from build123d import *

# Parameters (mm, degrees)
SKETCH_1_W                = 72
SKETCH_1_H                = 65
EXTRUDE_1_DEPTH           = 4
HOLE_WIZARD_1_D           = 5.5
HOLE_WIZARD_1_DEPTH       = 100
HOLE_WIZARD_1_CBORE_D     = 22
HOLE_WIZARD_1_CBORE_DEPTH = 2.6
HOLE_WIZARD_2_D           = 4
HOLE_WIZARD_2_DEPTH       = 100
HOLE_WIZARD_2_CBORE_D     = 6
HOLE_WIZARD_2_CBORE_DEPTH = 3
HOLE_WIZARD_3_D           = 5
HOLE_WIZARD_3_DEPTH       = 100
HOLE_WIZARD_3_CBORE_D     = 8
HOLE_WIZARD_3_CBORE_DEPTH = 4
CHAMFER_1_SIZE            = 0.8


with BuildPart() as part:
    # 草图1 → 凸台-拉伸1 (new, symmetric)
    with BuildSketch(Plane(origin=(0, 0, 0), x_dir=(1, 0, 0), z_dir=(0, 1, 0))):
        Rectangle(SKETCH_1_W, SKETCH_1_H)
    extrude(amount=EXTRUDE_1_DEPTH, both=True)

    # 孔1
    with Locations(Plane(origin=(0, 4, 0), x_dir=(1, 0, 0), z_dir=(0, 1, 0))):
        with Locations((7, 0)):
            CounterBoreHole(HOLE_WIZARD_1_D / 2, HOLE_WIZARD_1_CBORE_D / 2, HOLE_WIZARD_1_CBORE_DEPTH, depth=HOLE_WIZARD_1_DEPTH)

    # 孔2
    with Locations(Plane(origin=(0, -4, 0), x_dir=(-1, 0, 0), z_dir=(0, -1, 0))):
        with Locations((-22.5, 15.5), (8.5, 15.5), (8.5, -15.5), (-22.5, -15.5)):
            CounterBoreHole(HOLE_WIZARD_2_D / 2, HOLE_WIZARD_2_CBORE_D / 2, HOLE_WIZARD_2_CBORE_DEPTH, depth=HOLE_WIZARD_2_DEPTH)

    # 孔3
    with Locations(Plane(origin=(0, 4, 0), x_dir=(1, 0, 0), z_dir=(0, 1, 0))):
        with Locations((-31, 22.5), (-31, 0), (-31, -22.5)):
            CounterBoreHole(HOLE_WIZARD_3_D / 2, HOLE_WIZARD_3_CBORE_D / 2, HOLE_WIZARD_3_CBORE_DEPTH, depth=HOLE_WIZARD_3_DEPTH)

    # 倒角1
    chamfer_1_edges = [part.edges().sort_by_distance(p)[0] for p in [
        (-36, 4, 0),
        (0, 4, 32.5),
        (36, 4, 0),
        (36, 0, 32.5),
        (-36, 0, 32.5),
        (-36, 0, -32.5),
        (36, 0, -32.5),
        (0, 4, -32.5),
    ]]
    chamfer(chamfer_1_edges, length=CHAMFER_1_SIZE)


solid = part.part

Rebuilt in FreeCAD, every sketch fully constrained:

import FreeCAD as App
import Part
import Sketcher
from FreeCAD import Vector
Q = App.Units.Quantity


def edges_at(feature, points):
    """Names of the edges that pass closest to the given points."""
    edges = feature.Shape.Edges
    near = lambda p: min(range(len(edges)), key=lambda i: edges[i].distToShape(Part.Vertex(*p))[0])
    return sorted({f"Edge{near(p) + 1}" for p in points})


def add_polygon(sketch, points):
    """Adds a closed chain of lines whose ends are joined by coincident constraints."""
    first, n = sketch.GeometryCount, len(points)
    for a, b in zip(points, points[1:] + points[:1]):
        sketch.addGeometry(Part.LineSegment(App.Vector(*a, 0), App.Vector(*b, 0)), False)
    for i in range(n):
        sketch.addConstraint(Sketcher.Constraint("Coincident", first + i, 2, first + (i + 1) % n, 1))

doc = App.newDocument("Part")
params = doc.addObject("Spreadsheet::Sheet", "Params")
for row, (alias, value) in enumerate([
    ("sketch1_width", "72 mm"),
    ("sketch1_height", "65 mm"),
    ("pad1_length", "8 mm"),
    ("sketch2_diameter", "5.5 mm"),
    ("hole_diameter", "5.5 mm"),
    ("hole_depth", "100 mm"),
    ("hole_cbore_diameter", "22 mm"),
    ("hole_cbore_depth", "2.6 mm"),
    ("sketch3_diameter", "4 mm"),
    ("hole2_diameter", "4 mm"),
    ("hole2_depth", "100 mm"),
    ("hole2_cbore_diameter", "6 mm"),
    ("hole2_cbore_depth", "3 mm"),
    ("sketch4_diameter", "5 mm"),
    ("hole3_diameter", "5 mm"),
    ("hole3_depth", "100 mm"),
    ("hole3_cbore_diameter", "8 mm"),
    ("hole3_cbore_depth", "4 mm"),
    ("chamfer_size", "0.8 mm"),
], start=1):
    params.set(f"A{row}", alias)
    params.set(f"B{row}", "=" + value)
    params.setAlias(f"B{row}", alias)

body = doc.addObject("PartDesign::Body", "Body")

sketch1 = doc.addObject("Sketcher::SketchObject", "Sketch")
body.addObject(sketch1)
sketch1.AttachmentSupport = (doc.XZ_Plane, [""])
sketch1.MapMode = "FlatFace"
add_polygon(sketch1, [(-36, -32), (-36, 32), (36, 32), (36, -32)])
sketch1.addConstraint([
    Sketcher.Constraint("Vertical", 0),
    Sketcher.Constraint("Horizontal", 1),
    Sketcher.Constraint("Vertical", 2),
    Sketcher.Constraint("Horizontal", 3),
    Sketcher.Constraint("Symmetric", 0, 2, 2, 2, -1, 1),
    Sketcher.Constraint("DistanceX", 1, 1, 1, 2, Q("72 mm")),
    Sketcher.Constraint("DistanceY", 0, 1, 0, 2, Q("65 mm")),
])
sketch1.setExpression("Constraints[9]", "Params.sketch1_width")
sketch1.setExpression("Constraints[10]", "Params.sketch1_height")
pad1 = doc.addObject("PartDesign::Pad", "Pad")
body.addObject(pad1)
pad1.Profile = sketch1
pad1.setExpression("Length", "Params.pad1_length")
pad1.Midplane = True

sketch2 = doc.addObject("Sketcher::SketchObject", "Sketch001")
body.addObject(sketch2)
sketch2.AttachmentSupport = (doc.XZ_Plane, [""])
sketch2.MapMode = "FlatFace"
sketch2.AttachmentOffset = App.Placement(Vector(0, 0, -4), App.Rotation())
sketch2.addGeometry(Part.Circle(Vector(7, 0, 0), Vector(0, 0, 1), 2.8), False)
sketch2.addConstraint([
    Sketcher.Constraint("PointOnObject", 0, 3, -1),
    Sketcher.Constraint("Diameter", 0, Q("5.5 mm")),
    Sketcher.Constraint("DistanceX", -1, 1, 0, 3, Q("7 mm")),
])
sketch2.setExpression("Constraints[1]", "Params.sketch2_diameter")
doc.recompute()
hole = doc.addObject("PartDesign::Hole", "Hole")
body.addObject(hole)
hole.Profile = sketch2
hole.ThreadType = "None"
hole.setExpression("Diameter", "Params.hole_diameter")
hole.DepthType = "Dimension"
hole.setExpression("Depth", "Params.hole_depth")
hole.DrillPoint = "Flat"
hole.HoleCutType = "Counterbore"
hole.setExpression("HoleCutDiameter", "Params.hole_cbore_diameter")
hole.setExpression("HoleCutDepth", "Params.hole_cbore_depth")
hole.Reversed = True

sketch3 = doc.addObject("Sketcher::SketchObject", "Sketch002")
body.addObject(sketch3)
sketch3.AttachmentSupport = (doc.XZ_Plane, [""])
sketch3.MapMode = "FlatFace"
sketch3.AttachmentOffset = App.Placement(Vector(0, 0, 4), App.Rotation())
sketch3.addGeometry([
    Part.Circle(Vector(22.5, -15.5, 0), Vector(0, 0, 1), 2),
    Part.Circle(Vector(-8.5, -15.5, 0), Vector(0, 0, 1), 2),
    Part.Circle(Vector(-8.5, 15.5, 0), Vector(0, 0, 1), 2),
    Part.Circle(Vector(22.5, 15.5, 0), Vector(0, 0, 1), 2),
], False)
sketch3.addConstraint([
    Sketcher.Constraint("Equal", 0, 1),
    Sketcher.Constraint("Equal", 1, 2),
    Sketcher.Constraint("Equal", 2, 3),
    Sketcher.Constraint("Symmetric", 1, 3, 2, 3, -1),
    Sketcher.Constraint("Symmetric", 0, 3, 3, 3, -1),
    Sketcher.Constraint("Horizontal", 0, 3, 1, 3),
    Sketcher.Constraint("Diameter", 0, Q("4 mm")),
    Sketcher.Constraint("DistanceX", 1, 3, 0, 3, Q("31 mm")),
    Sketcher.Constraint("DistanceY", 1, 3, 2, 3, Q("31 mm")),
    Sketcher.Constraint("DistanceX", -1, 1, 0, 3, Q("22.5 mm")),
])
sketch3.setExpression("Constraints[6]", "Params.sketch3_diameter")
doc.recompute()
hole2 = doc.addObject("PartDesign::Hole", "Hole001")
body.addObject(hole2)
hole2.Profile = sketch3
hole2.ThreadType = "None"
hole2.setExpression("Diameter", "Params.hole2_diameter")
hole2.DepthType = "Dimension"
hole2.setExpression("Depth", "Params.hole2_depth")
hole2.DrillPoint = "Flat"
hole2.HoleCutType = "Counterbore"
hole2.setExpression("HoleCutDiameter", "Params.hole2_cbore_diameter")
hole2.setExpression("HoleCutDepth", "Params.hole2_cbore_depth")

sketch4 = doc.addObject("Sketcher::SketchObject", "Sketch003")
body.addObject(sketch4)
sketch4.AttachmentSupport = (doc.XZ_Plane, [""])
sketch4.MapMode = "FlatFace"
sketch4.AttachmentOffset = App.Placement(Vector(0, 0, -4), App.Rotation())
sketch4.addGeometry([
    Part.Circle(Vector(-31, -22.5, 0), Vector(0, 0, 1), 2.5),
    Part.Circle(Vector(-31, 0, 0), Vector(0, 0, 1), 2.5),
    Part.Circle(Vector(-31, 22.5, 0), Vector(0, 0, 1), 2.5),
], False)
sketch4.addConstraint([
    Sketcher.Constraint("Equal", 0, 1),
    Sketcher.Constraint("Equal", 1, 2),
    Sketcher.Constraint("Symmetric", 0, 3, 2, 3, -1),
    Sketcher.Constraint("PointOnObject", 1, 3, -1),
    Sketcher.Constraint("Vertical", 0, 3, 1, 3),
    Sketcher.Constraint("Diameter", 0, Q("5 mm")),
    Sketcher.Constraint("DistanceX", 0, 3, -1, 1, Q("31 mm")),
    Sketcher.Constraint("DistanceY", 0, 3, 2, 3, Q("45 mm")),
])
sketch4.setExpression("Constraints[5]", "Params.sketch4_diameter")
doc.recompute()
hole3 = doc.addObject("PartDesign::Hole", "Hole002")
body.addObject(hole3)
hole3.Profile = sketch4
hole3.ThreadType = "None"
hole3.setExpression("Diameter", "Params.hole3_diameter")
hole3.DepthType = "Dimension"
hole3.setExpression("Depth", "Params.hole3_depth")
hole3.DrillPoint = "Flat"
hole3.HoleCutType = "Counterbore"
hole3.setExpression("HoleCutDiameter", "Params.hole3_cbore_diameter")
hole3.setExpression("HoleCutDepth", "Params.hole3_cbore_depth")
hole3.Reversed = True
doc.recompute()

chamfer = doc.addObject("PartDesign::Chamfer", "Chamfer")
body.addObject(chamfer)
chamfer.Base = (hole3, edges_at(hole3, [
    (-36, 4, 0),
    (0, 4, 32.5),
    (36, 4, 0),
    (36, 0, 32.5),
    (-36, 0, 32.5),
    (-36, 0, -32.5),
    (36, 0, -32.5),
    (0, 4, -32.5),
]))
chamfer.setExpression("Size", "Params.chamfer_size")

doc.recompute()
